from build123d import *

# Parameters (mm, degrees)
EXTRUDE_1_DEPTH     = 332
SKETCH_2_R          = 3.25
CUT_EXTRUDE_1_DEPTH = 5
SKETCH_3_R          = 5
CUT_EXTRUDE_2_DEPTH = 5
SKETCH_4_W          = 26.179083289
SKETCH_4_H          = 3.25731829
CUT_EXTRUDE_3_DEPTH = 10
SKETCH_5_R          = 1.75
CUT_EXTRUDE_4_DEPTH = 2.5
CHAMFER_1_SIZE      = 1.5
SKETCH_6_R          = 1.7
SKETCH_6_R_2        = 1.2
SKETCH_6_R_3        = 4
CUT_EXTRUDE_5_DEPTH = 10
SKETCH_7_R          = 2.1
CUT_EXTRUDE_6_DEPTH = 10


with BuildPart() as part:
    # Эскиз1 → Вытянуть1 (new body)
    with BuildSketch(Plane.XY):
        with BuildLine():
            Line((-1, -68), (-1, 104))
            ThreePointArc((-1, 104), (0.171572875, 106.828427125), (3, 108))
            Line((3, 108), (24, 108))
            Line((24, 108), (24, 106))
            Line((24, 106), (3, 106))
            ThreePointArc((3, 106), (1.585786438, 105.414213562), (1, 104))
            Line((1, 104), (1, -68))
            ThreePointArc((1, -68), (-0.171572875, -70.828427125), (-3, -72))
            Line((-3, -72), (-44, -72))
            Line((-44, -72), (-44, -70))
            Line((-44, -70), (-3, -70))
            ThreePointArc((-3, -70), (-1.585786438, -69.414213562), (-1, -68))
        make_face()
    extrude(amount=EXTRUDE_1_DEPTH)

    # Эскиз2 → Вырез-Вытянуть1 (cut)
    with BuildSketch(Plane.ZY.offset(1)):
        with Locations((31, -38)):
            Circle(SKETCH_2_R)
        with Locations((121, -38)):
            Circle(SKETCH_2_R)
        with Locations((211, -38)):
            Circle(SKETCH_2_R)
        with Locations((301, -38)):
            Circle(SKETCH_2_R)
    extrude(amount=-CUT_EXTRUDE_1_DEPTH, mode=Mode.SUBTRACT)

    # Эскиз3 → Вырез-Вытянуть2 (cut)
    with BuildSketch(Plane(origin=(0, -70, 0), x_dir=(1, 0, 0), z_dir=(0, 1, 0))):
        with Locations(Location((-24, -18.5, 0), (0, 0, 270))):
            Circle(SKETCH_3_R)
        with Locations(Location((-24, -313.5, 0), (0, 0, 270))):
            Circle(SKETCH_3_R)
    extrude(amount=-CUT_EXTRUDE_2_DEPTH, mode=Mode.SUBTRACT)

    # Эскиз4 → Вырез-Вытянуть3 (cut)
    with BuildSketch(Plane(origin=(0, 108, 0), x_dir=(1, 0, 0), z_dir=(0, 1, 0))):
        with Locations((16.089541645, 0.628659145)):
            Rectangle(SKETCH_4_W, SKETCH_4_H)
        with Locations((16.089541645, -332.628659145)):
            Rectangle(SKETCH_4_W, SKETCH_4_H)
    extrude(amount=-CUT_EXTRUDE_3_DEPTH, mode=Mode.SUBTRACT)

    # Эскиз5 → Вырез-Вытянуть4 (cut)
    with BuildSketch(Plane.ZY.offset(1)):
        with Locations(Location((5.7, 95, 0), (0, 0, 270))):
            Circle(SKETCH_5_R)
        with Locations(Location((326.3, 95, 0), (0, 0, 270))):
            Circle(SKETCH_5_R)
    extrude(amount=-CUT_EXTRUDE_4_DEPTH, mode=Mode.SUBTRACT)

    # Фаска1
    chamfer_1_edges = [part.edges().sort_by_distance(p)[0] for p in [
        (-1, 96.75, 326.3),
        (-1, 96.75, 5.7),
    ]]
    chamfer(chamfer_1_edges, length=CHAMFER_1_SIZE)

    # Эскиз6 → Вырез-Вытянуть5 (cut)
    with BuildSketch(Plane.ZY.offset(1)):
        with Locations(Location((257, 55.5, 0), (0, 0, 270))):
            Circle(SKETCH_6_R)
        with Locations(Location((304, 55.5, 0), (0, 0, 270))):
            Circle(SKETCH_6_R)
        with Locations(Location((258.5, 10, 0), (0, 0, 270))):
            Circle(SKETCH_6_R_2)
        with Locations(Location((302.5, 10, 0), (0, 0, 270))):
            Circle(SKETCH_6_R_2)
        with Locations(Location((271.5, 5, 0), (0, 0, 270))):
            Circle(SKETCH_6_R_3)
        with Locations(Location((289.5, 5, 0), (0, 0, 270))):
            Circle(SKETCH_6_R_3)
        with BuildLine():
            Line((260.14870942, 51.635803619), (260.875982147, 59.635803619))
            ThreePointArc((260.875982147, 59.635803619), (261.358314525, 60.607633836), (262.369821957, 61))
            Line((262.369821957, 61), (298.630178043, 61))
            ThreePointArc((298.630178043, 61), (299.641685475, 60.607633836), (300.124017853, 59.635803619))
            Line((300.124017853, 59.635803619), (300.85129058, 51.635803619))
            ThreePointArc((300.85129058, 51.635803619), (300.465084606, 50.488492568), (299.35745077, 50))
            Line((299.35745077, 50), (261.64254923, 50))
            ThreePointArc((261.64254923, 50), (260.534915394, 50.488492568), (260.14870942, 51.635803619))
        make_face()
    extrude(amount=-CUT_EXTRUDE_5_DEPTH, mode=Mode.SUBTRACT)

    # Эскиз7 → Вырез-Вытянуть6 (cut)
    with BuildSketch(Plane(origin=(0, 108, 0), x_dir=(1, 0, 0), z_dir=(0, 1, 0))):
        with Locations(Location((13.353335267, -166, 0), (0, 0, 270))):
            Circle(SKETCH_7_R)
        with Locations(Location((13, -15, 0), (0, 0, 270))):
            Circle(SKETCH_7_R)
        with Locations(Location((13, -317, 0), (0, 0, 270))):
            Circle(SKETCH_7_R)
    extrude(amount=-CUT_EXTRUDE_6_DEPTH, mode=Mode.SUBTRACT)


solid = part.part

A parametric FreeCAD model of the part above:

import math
import FreeCAD as App
import Part
import Sketcher

V = App.Vector
Q = App.Units.Quantity


def edges_at(feature, points):
    """Names of the edges that pass closest to the given points."""
    edges = feature.Shape.Edges
    near = lambda p: min(range(len(edges)), key=lambda i: edges[i].distToShape(Part.Vertex(*p))[0])
    return sorted({f"Edge{near(p) + 1}" for p in points})


def add_polygon(sketch, points):
    """Adds a closed chain of lines whose ends are joined by coincident constraints."""
    first, n = sketch.GeometryCount, len(points)
    for a, b in zip(points, points[1:] + points[:1]):
        sketch.addGeometry(Part.LineSegment(App.Vector(*a, 0), App.Vector(*b, 0)), False)
    for i in range(n):
        sketch.addConstraint(Sketcher.Constraint("Coincident", first + i, 2, first + (i + 1) % n, 1))

doc = App.newDocument("Part")
body = doc.addObject("PartDesign::Body", "Body")

# Sketch on XY plane
sketch1 = body.newObject("Sketcher::SketchObject", "Sketch")
sketch1.AttachmentSupport = (doc.getObject("XY_Plane"), [""])
sketch1.MapMode = "FlatFace"
sketch1.addGeometry([
    Part.LineSegment(V(-1, 104, 0), V(-1, -68, 0)),  # 0
    Part.ArcOfCircle(Part.Circle(V(-3, -68, 0), V(0, 0, 1), 2), math.radians(-90), math.radians(0)),  # 1
    Part.LineSegment(V(-3, -70, 0), V(-44, -70, 0)),  # 2
    Part.LineSegment(V(-44, -70, 0), V(-44, -72, 0)),  # 3
    Part.LineSegment(V(-44, -72, 0), V(-3, -72, 0)),  # 4
    Part.ArcOfCircle(Part.Circle(V(-3, -68, 0), V(0, 0, 1), 4), math.radians(-90), math.radians(0)),  # 5
    Part.LineSegment(V(1, -68, 0), V(1, 104, 0)),  # 6
    Part.ArcOfCircle(Part.Circle(V(3, 104, 0), V(0, 0, 1), 2), math.radians(90), math.radians(180)),  # 7
    Part.LineSegment(V(3, 106, 0), V(24, 106, 0)),  # 8
    Part.LineSegment(V(24, 106, 0), V(24, 108, 0)),  # 9
    Part.LineSegment(V(24, 108, 0), V(3, 108, 0)),  # 10
    Part.ArcOfCircle(Part.Circle(V(3, 104, 0), V(0, 0, 1), 4), math.radians(90), math.radians(180)),  # 11
], False)
sketch1.addConstraint([
    Sketcher.Constraint("Tangent", 0, 2, 1, 2),
    Sketcher.Constraint("Tangent", 1, 1, 2, 1),
    Sketcher.Constraint("Coincident", 2, 2, 3, 1),
    Sketcher.Constraint("Coincident", 3, 2, 4, 1),
    Sketcher.Constraint("Tangent", 4, 2, 5, 1),
    Sketcher.Constraint("Tangent", 5, 2, 6, 1),
    Sketcher.Constraint("Tangent", 6, 2, 7, 2),
    Sketcher.Constraint("Tangent", 7, 1, 8, 1),
    Sketcher.Constraint("Coincident", 8, 2, 9, 1),
    Sketcher.Constraint("Coincident", 9, 2, 10, 1),
    Sketcher.Constraint("Tangent", 10, 2, 11, 1),
    Sketcher.Constraint("Tangent", 11, 2, 0, 1),
    Sketcher.Constraint("Vertical", 0),
    Sketcher.Constraint("Horizontal", 2),
    Sketcher.Constraint("Vertical", 3),
    Sketcher.Constraint("Horizontal", 4),
    Sketcher.Constraint("Vertical", 6),
    Sketcher.Constraint("Horizontal", 8),
    Sketcher.Constraint("Vertical", 9),
    Sketcher.Constraint("Horizontal", 10),
    Sketcher.Constraint("Coincident", 5, 3, 1, 3),
    Sketcher.Constraint("Coincident", 11, 3, 7, 3),
    Sketcher.Constraint("Equal", 1, 7),
    Sketcher.Constraint("Radius", 1, Q("2 mm")),
    Sketcher.Constraint("Radius", 5, Q("4 mm")),
    Sketcher.Constraint("DistanceX", 2, 2, 2, 1, Q("41 mm")),
    Sketcher.Constraint("DistanceX", 8, 1, 8, 2, Q("21 mm")),
    Sketcher.Constraint("DistanceY", 0, 2, 0, 1, Q("172 mm")),
    Sketcher.Constraint("DistanceX", 1, 3, -1, 1, Q("3 mm")),
    Sketcher.Constraint("DistanceY", 1, 3, -1, 1, Q("68 mm")),
])
pad1 = body.newObject("PartDesign::Pad", "Pad")
pad1.Profile = sketch1
pad1.Length = 332

# Sketch on YZ plane
sketch2 = body.newObject("Sketcher::SketchObject", "Sketch001")
sketch2.AttachmentSupport = (doc.getObject("YZ_Plane"), [""])
sketch2.MapMode = "FlatFace"
sketch2.AttachmentOffset = App.Placement(V(0, 0, -1), App.Rotation())
sketch2.addGeometry([
    Part.Circle(V(-38, 31, 0), V(0, 0, 1), 3.2),
    Part.Circle(V(-38, 121, 0), V(0, 0, 1), 3.2),
    Part.Circle(V(-38, 211, 0), V(0, 0, 1), 3.2),
    Part.Circle(V(-38, 301, 0), V(0, 0, 1), 3.2),
], False)
sketch2.addConstraint([
    Sketcher.Constraint("Equal", 0, 1),
    Sketcher.Constraint("Equal", 1, 2),
    Sketcher.Constraint("Equal", 2, 3),
    Sketcher.Constraint("Vertical", 0, 3, 1, 3),
    Sketcher.Constraint("Vertical", 1, 3, 2, 3),
    Sketcher.Constraint("Vertical", 2, 3, 3, 3),
    Sketcher.Constraint("Diameter", 0, Q("6.5 mm")),
    Sketcher.Constraint("DistanceX", 0, 3, -1, 1, Q("38 mm")),
    Sketcher.Constraint("DistanceY", -1, 1, 0, 3, Q("31 mm")),
    Sketcher.Constraint("DistanceY", -1, 1, 1, 3, Q("121 mm")),
    Sketcher.Constraint("DistanceY", -1, 1, 2, 3, Q("211 mm")),
    Sketcher.Constraint("DistanceY", -1, 1, 3, 3, Q("301 mm")),
])
pocket1 = body.newObject("PartDesign::Pocket", "Pocket")
pocket1.Profile = sketch2
pocket1.Length = 5
pocket1.Reversed = True

# Sketch on XZ plane
sketch3 = body.newObject("Sketcher::SketchObject", "Sketch002")
sketch3.AttachmentSupport = (doc.getObject("XZ_Plane"), [""])
sketch3.MapMode = "FlatFace"
sketch3.AttachmentOffset = App.Placement(V(0, 0, 70), App.Rotation())
sketch3.addGeometry([
    Part.Circle(V(-24, 18, 0), V(0, 0, 1), 5),
    Part.Circle(V(-24, 314, 0), V(0, 0, 1), 5),
], False)
sketch3.addConstraint([
    Sketcher.Constraint("Equal", 0, 1),
    Sketcher.Constraint("Vertical", 0, 3, 1, 3),
    Sketcher.Constraint("Diameter", 0, Q("10 mm")),
    Sketcher.Constraint("DistanceX", 0, 3, -1, 1, Q("24 mm")),
    Sketcher.Constraint("DistanceY", 0, 3, 1, 3, Q("295 mm")),
    Sketcher.Constraint("DistanceY", -1, 1, 0, 3, Q("18.5 mm")),
])
pocket2 = body.newObject("PartDesign::Pocket", "Pocket001")
pocket2.Profile = sketch3
pocket2.Length = 5
pocket2.Reversed = True

# Sketch on XZ plane
sketch4 = body.newObject("Sketcher::SketchObject", "Sketch003")
sketch4.AttachmentSupport = (doc.getObject("XZ_Plane"), [""])
sketch4.MapMode = "FlatFace"
sketch4.AttachmentOffset = App.Placement(V(0, 0, -108), App.Rotation())
add_polygon(sketch4, [(3, -2.3), (3, 1), (29.2, 1), (29.2, -2.3)])  # lines 0-3
add_polygon(sketch4, [(3, 331), (3, 334.3), (29.2, 334.3), (29.2, 331)])  # lines 4-7
sketch4.addConstraint([
    Sketcher.Constraint("Vertical", 0),
    Sketcher.Constraint("Horizontal", 1),
    Sketcher.Constraint("Vertical", 2),
    Sketcher.Constraint("Horizontal", 3),
    Sketcher.Constraint("Vertical", 4),
    Sketcher.Constraint("Horizontal", 5),
    Sketcher.Constraint("Vertical", 6),
    Sketcher.Constraint("Horizontal", 7),
    Sketcher.Constraint("Vertical", 3, 2, 4, 2),
    Sketcher.Constraint("Vertical", 2, 2, 5, 2),
    Sketcher.Constraint("Equal", 2, 4),
    Sketcher.Constraint("DistanceX", -1, 1, 0, 2, Q("3 mm")),
    Sketcher.Constraint("DistanceY", -1, 1, 0, 2, Q("1 mm")),
    Sketcher.Constraint("DistanceY", -1, 1, 6, 2, Q("331 mm")),
    Sketcher.Constraint("DistanceY", 0, 1, 0, 2, Q("3.257318 mm")),
    Sketcher.Constraint("DistanceX", 1, 1, 1, 2, Q("26.179083 mm")),
])
pocket3 = body.newObject("PartDesign::Pocket", "Pocket002")
pocket3.Profile = sketch4
pocket3.Length = 10
pocket3.Reversed = True

# Sketch on YZ plane
sketch5 = body.newObject("Sketcher::SketchObject", "Sketch004")
sketch5.AttachmentSupport = (doc.getObject("YZ_Plane"), [""])
sketch5.MapMode = "FlatFace"
sketch5.AttachmentOffset = App.Placement(V(0, 0, -1), App.Rotation())
sketch5.addGeometry([
    Part.Circle(V(95, 5.7, 0), V(0, 0, 1), 1.8),
    Part.Circle(V(95, 326.3, 0), V(0, 0, 1), 1.8),
], False)
sketch5.addConstraint([
    Sketcher.Constraint("Equal", 0, 1),
    Sketcher.Constraint("Vertical", 0, 3, 1, 3),
    Sketcher.Constraint("Diameter", 0, Q("3.5 mm")),
    Sketcher.Constraint("DistanceX", -1, 1, 0, 3, Q("95 mm")),
    Sketcher.Constraint("DistanceY", -1, 1, 0, 3, Q("5.7 mm")),
    Sketcher.Constraint("DistanceY", -1, 1, 1, 3, Q("326.3 mm")),
])
pocket4 = body.newObject("PartDesign::Pocket", "Pocket003")
pocket4.Profile = sketch5
pocket4.Length = 2.5
pocket4.Reversed = True
doc.recompute()

chamfer = body.newObject("PartDesign::Chamfer", "Chamfer")
chamfer.Base = (pocket4, edges_at(pocket4, [(-1, 96.75, 326.3), (-1, 96.75, 5.7)]))
chamfer.Size = 1.5

# Sketch on YZ plane
sketch6 = body.newObject("Sketcher::SketchObject", "Sketch005")
sketch6.AttachmentSupport = (doc.getObject("YZ_Plane"), [""])
sketch6.MapMode = "FlatFace"
sketch6.AttachmentOffset = App.Placement(V(0, 0, -1), App.Rotation())
sketch6.addGeometry([
    Part.Circle(V(55.5, 257, 0), V(0, 0, 1), 1.7),  # 0
    Part.Circle(V(55.5, 304, 0), V(0, 0, 1), 1.7),  # 1
    Part.Circle(V(10, 258.5, 0), V(0, 0, 1), 1.2),  # 2
    Part.Circle(V(10, 302.5, 0), V(0, 0, 1), 1.2),  # 3
    Part.Circle(V(5, 271.5, 0), V(0, 0, 1), 4),  # 4
    Part.Circle(V(5, 289.5, 0), V(0, 0, 1), 4),  # 5
    Part.LineSegment(V(59.6, 260.9, 0), V(51.6, 260.1, 0)),  # 6
    Part.ArcOfCircle(Part.Circle(V(51.5, 261.6, 0), V(0, 0, 1), 1.5), math.radians(180), math.radians(275)),  # 7
    Part.LineSegment(V(50, 261.6, 0), V(50, 299.4, 0)),  # 8
    Part.ArcOfCircle(Part.Circle(V(51.5, 299.4, 0), V(0, 0, 1), 1.5), math.radians(85), math.radians(180)),  # 9
    Part.LineSegment(V(51.6, 300.9, 0), V(59.6, 300.1, 0)),  # 10
    Part.ArcOfCircle(Part.Circle(V(59.5, 298.6, 0), V(0, 0, 1), 1.5), math.radians(0), math.radians(85)),  # 11
    Part.LineSegment(V(61, 298.6, 0), V(61, 262.4, 0)),  # 12
    Part.ArcOfCircle(Part.Circle(V(59.5, 262.4, 0), V(0, 0, 1), 1.5), math.radians(-85), math.radians(0)),  # 13
], False)
sketch6.addConstraint([
    Sketcher.Constraint("Tangent", 6, 2, 7, 2),
    Sketcher.Constraint("Tangent", 7, 1, 8, 1),
    Sketcher.Constraint("Tangent", 8, 2, 9, 2),
    Sketcher.Constraint("Tangent", 9, 1, 10, 1),
    Sketcher.Constraint("Tangent", 10, 2, 11, 2),
    Sketcher.Constraint("Tangent", 11, 1, 12, 1),
    Sketcher.Constraint("Tangent", 12, 2, 13, 2),
    Sketcher.Constraint("Tangent", 13, 1, 6, 1),
    Sketcher.Constraint("Vertical", 8),
    Sketcher.Constraint("Vertical", 12),
    Sketcher.Constraint("Equal", 0, 1),
    Sketcher.Constraint("Equal", 2, 3),
    Sketcher.Constraint("Equal", 4, 5),
    Sketcher.Constraint("Equal", 7, 9),
    Sketcher.Constraint("Equal", 9, 11),
    Sketcher.Constraint("Equal", 11, 13),
    Sketcher.Constraint("Vertical", 0, 3, 1, 3),
    Sketcher.Constraint("Vertical", 2, 3, 3, 3),
    Sketcher.Constraint("Vertical", 4, 3, 5, 3),
    Sketcher.Constraint("Vertical", 6, 2, 9, 1),
    Sketcher.Constraint("Diameter", 4, Q("8 mm")),
    Sketcher.Constraint("Diameter", 0, Q("3.4 mm")),
    Sketcher.Constraint("Diameter", 2, Q("2.4 mm")),
    Sketcher.Constraint("Radius", 7, Q("1.5 mm")),
    Sketcher.Constraint("DistanceY", -1, 1, 0, 3, Q("257 mm")),
    Sketcher.Constraint("DistanceY", -1, 1, 1, 3, Q("304 mm")),
    Sketcher.Constraint("DistanceX", -1, 1, 2, 3, Q("10 mm")),
    Sketcher.Constraint("DistanceX", -1, 1, 4, 3, Q("5 mm")),
    Sketcher.Constraint("DistanceX", -1, 1, 7, 1, Q("50 mm")),
    Sketcher.Constraint("DistanceX", -1, 1, 11, 1, Q("61 mm")),
    Sketcher.Constraint("DistanceY", 2, 3, 3, 3, Q("44 mm")),
    Sketcher.Constraint("DistanceY", 2, 3, 4, 3, Q("13 mm")),
    Sketcher.Constraint("DistanceY", 5, 3, 3, 3, Q("13 mm")),
    Sketcher.Constraint("DistanceX", 7, 3, 0, 3, Q("4 mm")),
    Sketcher.Constraint("DistanceY", -1, 1, 2, 3, Q("258.5 mm")),
    Sketcher.Constraint("DistanceY", 8, 1, 8, 2, Q("37.714902 mm")),
    Sketcher.Constraint("Distance", 6, Q("8.03299 mm")),
    Sketcher.Constraint("DistanceY", -1, 1, 7, 3, Q("261.642549 mm")),
])
pocket5 = body.newObject("PartDesign::Pocket", "Pocket004")
pocket5.Profile = sketch6
pocket5.Length = 10
pocket5.Reversed = True

# Sketch on XZ plane
sketch7 = body.newObject("Sketcher::SketchObject", "Sketch006")
sketch7.AttachmentSupport = (doc.getObject("XZ_Plane"), [""])
sketch7.MapMode = "FlatFace"
sketch7.AttachmentOffset = App.Placement(V(0, 0, -108), App.Rotation())
sketch7.addGeometry([
    Part.Circle(V(13.4, 166, 0), V(0, 0, 1), 2.1),
    Part.Circle(V(13, 15, 0), V(0, 0, 1), 2.1),
    Part.Circle(V(13, 317, 0), V(0, 0, 1), 2.1),
], False)
sketch7.addConstraint([
    Sketcher.Constraint("Equal", 0, 1),
    Sketcher.Constraint("Equal", 1, 2),
    Sketcher.Constraint("Vertical", 1, 3, 2, 3),
    Sketcher.Constraint("Diameter", 0, Q("4.2 mm")),
    Sketcher.Constraint("DistanceY", -1, 1, 0, 3, Q("166 mm")),
    Sketcher.Constraint("DistanceX", -1, 1, 1, 3, Q("13 mm")),
    Sketcher.Constraint("DistanceY", -1, 1, 1, 3, Q("15 mm")),
    Sketcher.Constraint("DistanceY", -1, 1, 2, 3, Q("317 mm")),
    Sketcher.Constraint("DistanceX", -1, 1, 0, 3, Q("13.353335 mm")),
])
pocket6 = body.newObject("PartDesign::Pocket", "Pocket005")
pocket6.Profile = sketch7
pocket6.Length = 10
pocket6.Reversed = True

doc.recompute()
